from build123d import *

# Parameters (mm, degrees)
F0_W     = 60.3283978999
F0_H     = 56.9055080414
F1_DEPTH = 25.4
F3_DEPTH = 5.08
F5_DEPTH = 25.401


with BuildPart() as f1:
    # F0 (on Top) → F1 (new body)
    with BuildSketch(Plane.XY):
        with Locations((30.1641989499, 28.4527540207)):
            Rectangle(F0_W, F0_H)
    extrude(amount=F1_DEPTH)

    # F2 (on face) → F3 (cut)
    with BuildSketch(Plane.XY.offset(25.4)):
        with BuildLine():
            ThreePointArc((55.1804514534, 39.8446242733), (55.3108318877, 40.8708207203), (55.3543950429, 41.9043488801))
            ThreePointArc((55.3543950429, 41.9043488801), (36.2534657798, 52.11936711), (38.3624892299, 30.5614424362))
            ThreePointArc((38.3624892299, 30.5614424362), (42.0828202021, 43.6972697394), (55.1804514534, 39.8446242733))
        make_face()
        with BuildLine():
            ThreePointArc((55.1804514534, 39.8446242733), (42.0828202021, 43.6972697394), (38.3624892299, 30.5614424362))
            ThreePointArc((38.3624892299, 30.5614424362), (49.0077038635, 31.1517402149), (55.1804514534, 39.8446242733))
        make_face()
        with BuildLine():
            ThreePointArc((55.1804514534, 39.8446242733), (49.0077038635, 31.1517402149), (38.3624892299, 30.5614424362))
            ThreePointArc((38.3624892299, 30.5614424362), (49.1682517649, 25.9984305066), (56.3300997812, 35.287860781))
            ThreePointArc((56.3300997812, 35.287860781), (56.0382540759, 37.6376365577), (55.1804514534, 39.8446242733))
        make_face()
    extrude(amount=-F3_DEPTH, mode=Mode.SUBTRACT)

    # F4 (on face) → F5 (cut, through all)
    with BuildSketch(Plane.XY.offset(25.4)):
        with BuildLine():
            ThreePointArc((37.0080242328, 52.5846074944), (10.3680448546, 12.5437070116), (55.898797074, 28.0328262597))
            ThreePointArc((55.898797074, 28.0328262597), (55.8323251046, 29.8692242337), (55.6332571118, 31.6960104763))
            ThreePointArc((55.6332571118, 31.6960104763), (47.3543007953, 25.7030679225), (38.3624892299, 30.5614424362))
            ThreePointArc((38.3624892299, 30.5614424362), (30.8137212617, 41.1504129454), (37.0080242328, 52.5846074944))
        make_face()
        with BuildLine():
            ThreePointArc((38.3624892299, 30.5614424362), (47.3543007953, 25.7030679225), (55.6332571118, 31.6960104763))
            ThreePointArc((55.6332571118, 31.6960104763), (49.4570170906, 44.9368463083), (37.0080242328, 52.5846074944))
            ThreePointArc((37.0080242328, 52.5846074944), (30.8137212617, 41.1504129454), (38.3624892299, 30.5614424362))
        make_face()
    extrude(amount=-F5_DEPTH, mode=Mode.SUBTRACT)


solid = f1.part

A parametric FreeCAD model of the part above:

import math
import FreeCAD as App
import Part
import Sketcher
from FreeCAD import Vector
Q = App.Units.Quantity


def add_polygon(sketch, points):
    """Adds a closed chain of lines whose ends are joined by coincident constraints."""
    first, n = sketch.GeometryCount, len(points)
    for a, b in zip(points, points[1:] + points[:1]):
        sketch.addGeometry(Part.LineSegment(App.Vector(*a, 0), App.Vector(*b, 0)), False)
    for i in range(n):
        sketch.addConstraint(Sketcher.Constraint("Coincident", first + i, 2, first + (i + 1) % n, 1))

doc = App.newDocument("Part")
body = doc.addObject("PartDesign::Body", "Body")

# Sketch on XY plane
sketch1 = doc.addObject("Sketcher::SketchObject", "Sketch")
body.addObject(sketch1)
sketch1.AttachmentSupport = (doc.XY_Plane, [""])
sketch1.MapMode = "FlatFace"
add_polygon(sketch1, [(0, 56.905508), (0, 0), (60.328398, 0), (60.328398, 56.905508)])  # lines 0-3
sketch1.addConstraint(Sketcher.Constraint("Vertical", 0))
sketch1.addConstraint(Sketcher.Constraint("Horizontal", 1))
sketch1.addConstraint(Sketcher.Constraint("Vertical", 2))
sketch1.addConstraint(Sketcher.Constraint("Horizontal", 3))
sketch1.addConstraint(Sketcher.Constraint("Coincident", 0, 2, -1, 1))
sketch1.addConstraint(Sketcher.Constraint("DistanceY", 0, 2, 0, 1, Q("56.905508 mm")))
sketch1.addConstraint(Sketcher.Constraint("DistanceX", 1, 1, 1, 2, Q("60.328398 mm")))
pad1 = doc.addObject("PartDesign::Pad", "Pad")
body.addObject(pad1)
pad1.Profile = sketch1
pad1.Length = Q("1 in")

# Sketch on XY plane
sketch2 = doc.addObject("Sketcher::SketchObject", "Sketch001")
body.addObject(sketch2)
sketch2.AttachmentSupport = (doc.XY_Plane, [""])
sketch2.MapMode = "FlatFace"
sketch2.AttachmentOffset = App.Placement(Vector(0, 0, 1 * 25.4), App.Rotation())
sketch2.addGeometry(Part.ArcOfCircle(Part.Circle(Vector(43.072477, 41.904349, 0), Vector(0, 0, 1), 12.281918), math.radians(-9.654341), math.radians(0)), False)
sketch2.addGeometry(Part.ArcOfCircle(Part.Circle(Vector(43.072477, 41.904349, 0), Vector(0, 0, 1), 12.281918), math.radians(0), math.radians(247.449996)), False)
sketch2.addGeometry(Part.ArcOfCircle(Part.Circle(Vector(46.724647, 35.287861, 0), Vector(0, 0, 1), 9.605452), math.radians(-150.524209), math.radians(0)), False)
sketch2.addGeometry(Part.ArcOfCircle(Part.Circle(Vector(46.724647, 35.287861, 0), Vector(0, 0, 1), 9.605452), math.radians(0), math.radians(28.319863)), False)
sketch2.addConstraint(Sketcher.Constraint("Tangent", 0, 2, 1, 1))
sketch2.addConstraint(Sketcher.Constraint("Coincident", 1, 2, 2, 1))
sketch2.addConstraint(Sketcher.Constraint("Tangent", 2, 2, 3, 1))
sketch2.addConstraint(Sketcher.Constraint("Coincident", 3, 2, 0, 1))
sketch2.addConstraint(Sketcher.Constraint("Equal", 0, 1))
sketch2.addConstraint(Sketcher.Constraint("Equal", 2, 3))
sketch2.addConstraint(Sketcher.Constraint("Horizontal", 1, 3, 0, 2))
sketch2.addConstraint(Sketcher.Constraint("Horizontal", 3, 3, 2, 2))
sketch2.addConstraint(Sketcher.Constraint("Radius", 0, Q("12.281918 mm")))
sketch2.addConstraint(Sketcher.Constraint("Radius", 2, Q("9.605452 mm")))
sketch2.addConstraint(Sketcher.Constraint("DistanceY", 2, 2, 3, 2, Q("0.1794001 in")))
sketch2.addConstraint(Sketcher.Constraint("DistanceX", -1, 1, 2, 2, Q("56.3301 mm")))
sketch2.addConstraint(Sketcher.Constraint("DistanceY", -1, 1, 0, 3, Q("41.904349 mm")))
sketch2.addConstraint(Sketcher.Constraint("DistanceY", -1, 1, 2, 3, Q("35.287861 mm")))
pocket1 = doc.addObject("PartDesign::Pocket", "Pocket")
body.addObject(pocket1)
pocket1.Profile = sketch2
pocket1.Length = Q("0.2 in")

# Sketch on XY plane
sketch3 = doc.addObject("Sketcher::SketchObject", "Sketch002")
body.addObject(sketch3)
sketch3.AttachmentSupport = (doc.XY_Plane, [""])
sketch3.MapMode = "FlatFace"
sketch3.AttachmentOffset = App.Placement(Vector(0, 0, 1 * 25.4), App.Rotation())
sketch3.addGeometry(Part.ArcOfCircle(Part.Circle(Vector(30.498797, 28.032826, 0), Vector(0, 0, 1), 25.4), math.radians(75.15122), math.radians(360)), False)
sketch3.addGeometry(Part.ArcOfCircle(Part.Circle(Vector(30.498797, 28.032826, 0), Vector(0, 0, 1), 25.4), math.radians(0), math.radians(8.292105)), False)
sketch3.addGeometry(Part.ArcOfCircle(Part.Circle(Vector(30.498797, 28.032826, 0), Vector(0, 0, 1), 25.4), math.radians(8.292105), math.radians(75.15122)), False)
sketch3.addConstraint(Sketcher.Constraint("Tangent", 0, 2, 1, 1))
sketch3.addConstraint(Sketcher.Constraint("Tangent", 1, 2, 2, 1))
sketch3.addConstraint(Sketcher.Constraint("Tangent", 2, 2, 0, 1))
sketch3.addConstraint(Sketcher.Constraint("Horizontal", 2, 3, 0, 2))
sketch3.addConstraint(Sketcher.Constraint("Radius", 0, Q("1 in")))
sketch3.addConstraint(Sketcher.Constraint("DistanceY", -1, 1, 1, 2, Q("31.69601 mm")))
sketch3.addConstraint(Sketcher.Constraint("DistanceX", 1, 2, 0, 2, Q("0.26554 mm")))
sketch3.addConstraint(Sketcher.Constraint("DistanceY", 0, 3, 2, 2, Q("24.551781 mm")))
sketch3.addConstraint(Sketcher.Constraint("DistanceX", -1, 1, 0, 3, Q("30.498797 mm")))
pocket2 = doc.addObject("PartDesign::Pocket", "Pocket001")
body.addObject(pocket2)
pocket2.Profile = sketch3
pocket2.Type = "ThroughAll"

doc.recompute()
